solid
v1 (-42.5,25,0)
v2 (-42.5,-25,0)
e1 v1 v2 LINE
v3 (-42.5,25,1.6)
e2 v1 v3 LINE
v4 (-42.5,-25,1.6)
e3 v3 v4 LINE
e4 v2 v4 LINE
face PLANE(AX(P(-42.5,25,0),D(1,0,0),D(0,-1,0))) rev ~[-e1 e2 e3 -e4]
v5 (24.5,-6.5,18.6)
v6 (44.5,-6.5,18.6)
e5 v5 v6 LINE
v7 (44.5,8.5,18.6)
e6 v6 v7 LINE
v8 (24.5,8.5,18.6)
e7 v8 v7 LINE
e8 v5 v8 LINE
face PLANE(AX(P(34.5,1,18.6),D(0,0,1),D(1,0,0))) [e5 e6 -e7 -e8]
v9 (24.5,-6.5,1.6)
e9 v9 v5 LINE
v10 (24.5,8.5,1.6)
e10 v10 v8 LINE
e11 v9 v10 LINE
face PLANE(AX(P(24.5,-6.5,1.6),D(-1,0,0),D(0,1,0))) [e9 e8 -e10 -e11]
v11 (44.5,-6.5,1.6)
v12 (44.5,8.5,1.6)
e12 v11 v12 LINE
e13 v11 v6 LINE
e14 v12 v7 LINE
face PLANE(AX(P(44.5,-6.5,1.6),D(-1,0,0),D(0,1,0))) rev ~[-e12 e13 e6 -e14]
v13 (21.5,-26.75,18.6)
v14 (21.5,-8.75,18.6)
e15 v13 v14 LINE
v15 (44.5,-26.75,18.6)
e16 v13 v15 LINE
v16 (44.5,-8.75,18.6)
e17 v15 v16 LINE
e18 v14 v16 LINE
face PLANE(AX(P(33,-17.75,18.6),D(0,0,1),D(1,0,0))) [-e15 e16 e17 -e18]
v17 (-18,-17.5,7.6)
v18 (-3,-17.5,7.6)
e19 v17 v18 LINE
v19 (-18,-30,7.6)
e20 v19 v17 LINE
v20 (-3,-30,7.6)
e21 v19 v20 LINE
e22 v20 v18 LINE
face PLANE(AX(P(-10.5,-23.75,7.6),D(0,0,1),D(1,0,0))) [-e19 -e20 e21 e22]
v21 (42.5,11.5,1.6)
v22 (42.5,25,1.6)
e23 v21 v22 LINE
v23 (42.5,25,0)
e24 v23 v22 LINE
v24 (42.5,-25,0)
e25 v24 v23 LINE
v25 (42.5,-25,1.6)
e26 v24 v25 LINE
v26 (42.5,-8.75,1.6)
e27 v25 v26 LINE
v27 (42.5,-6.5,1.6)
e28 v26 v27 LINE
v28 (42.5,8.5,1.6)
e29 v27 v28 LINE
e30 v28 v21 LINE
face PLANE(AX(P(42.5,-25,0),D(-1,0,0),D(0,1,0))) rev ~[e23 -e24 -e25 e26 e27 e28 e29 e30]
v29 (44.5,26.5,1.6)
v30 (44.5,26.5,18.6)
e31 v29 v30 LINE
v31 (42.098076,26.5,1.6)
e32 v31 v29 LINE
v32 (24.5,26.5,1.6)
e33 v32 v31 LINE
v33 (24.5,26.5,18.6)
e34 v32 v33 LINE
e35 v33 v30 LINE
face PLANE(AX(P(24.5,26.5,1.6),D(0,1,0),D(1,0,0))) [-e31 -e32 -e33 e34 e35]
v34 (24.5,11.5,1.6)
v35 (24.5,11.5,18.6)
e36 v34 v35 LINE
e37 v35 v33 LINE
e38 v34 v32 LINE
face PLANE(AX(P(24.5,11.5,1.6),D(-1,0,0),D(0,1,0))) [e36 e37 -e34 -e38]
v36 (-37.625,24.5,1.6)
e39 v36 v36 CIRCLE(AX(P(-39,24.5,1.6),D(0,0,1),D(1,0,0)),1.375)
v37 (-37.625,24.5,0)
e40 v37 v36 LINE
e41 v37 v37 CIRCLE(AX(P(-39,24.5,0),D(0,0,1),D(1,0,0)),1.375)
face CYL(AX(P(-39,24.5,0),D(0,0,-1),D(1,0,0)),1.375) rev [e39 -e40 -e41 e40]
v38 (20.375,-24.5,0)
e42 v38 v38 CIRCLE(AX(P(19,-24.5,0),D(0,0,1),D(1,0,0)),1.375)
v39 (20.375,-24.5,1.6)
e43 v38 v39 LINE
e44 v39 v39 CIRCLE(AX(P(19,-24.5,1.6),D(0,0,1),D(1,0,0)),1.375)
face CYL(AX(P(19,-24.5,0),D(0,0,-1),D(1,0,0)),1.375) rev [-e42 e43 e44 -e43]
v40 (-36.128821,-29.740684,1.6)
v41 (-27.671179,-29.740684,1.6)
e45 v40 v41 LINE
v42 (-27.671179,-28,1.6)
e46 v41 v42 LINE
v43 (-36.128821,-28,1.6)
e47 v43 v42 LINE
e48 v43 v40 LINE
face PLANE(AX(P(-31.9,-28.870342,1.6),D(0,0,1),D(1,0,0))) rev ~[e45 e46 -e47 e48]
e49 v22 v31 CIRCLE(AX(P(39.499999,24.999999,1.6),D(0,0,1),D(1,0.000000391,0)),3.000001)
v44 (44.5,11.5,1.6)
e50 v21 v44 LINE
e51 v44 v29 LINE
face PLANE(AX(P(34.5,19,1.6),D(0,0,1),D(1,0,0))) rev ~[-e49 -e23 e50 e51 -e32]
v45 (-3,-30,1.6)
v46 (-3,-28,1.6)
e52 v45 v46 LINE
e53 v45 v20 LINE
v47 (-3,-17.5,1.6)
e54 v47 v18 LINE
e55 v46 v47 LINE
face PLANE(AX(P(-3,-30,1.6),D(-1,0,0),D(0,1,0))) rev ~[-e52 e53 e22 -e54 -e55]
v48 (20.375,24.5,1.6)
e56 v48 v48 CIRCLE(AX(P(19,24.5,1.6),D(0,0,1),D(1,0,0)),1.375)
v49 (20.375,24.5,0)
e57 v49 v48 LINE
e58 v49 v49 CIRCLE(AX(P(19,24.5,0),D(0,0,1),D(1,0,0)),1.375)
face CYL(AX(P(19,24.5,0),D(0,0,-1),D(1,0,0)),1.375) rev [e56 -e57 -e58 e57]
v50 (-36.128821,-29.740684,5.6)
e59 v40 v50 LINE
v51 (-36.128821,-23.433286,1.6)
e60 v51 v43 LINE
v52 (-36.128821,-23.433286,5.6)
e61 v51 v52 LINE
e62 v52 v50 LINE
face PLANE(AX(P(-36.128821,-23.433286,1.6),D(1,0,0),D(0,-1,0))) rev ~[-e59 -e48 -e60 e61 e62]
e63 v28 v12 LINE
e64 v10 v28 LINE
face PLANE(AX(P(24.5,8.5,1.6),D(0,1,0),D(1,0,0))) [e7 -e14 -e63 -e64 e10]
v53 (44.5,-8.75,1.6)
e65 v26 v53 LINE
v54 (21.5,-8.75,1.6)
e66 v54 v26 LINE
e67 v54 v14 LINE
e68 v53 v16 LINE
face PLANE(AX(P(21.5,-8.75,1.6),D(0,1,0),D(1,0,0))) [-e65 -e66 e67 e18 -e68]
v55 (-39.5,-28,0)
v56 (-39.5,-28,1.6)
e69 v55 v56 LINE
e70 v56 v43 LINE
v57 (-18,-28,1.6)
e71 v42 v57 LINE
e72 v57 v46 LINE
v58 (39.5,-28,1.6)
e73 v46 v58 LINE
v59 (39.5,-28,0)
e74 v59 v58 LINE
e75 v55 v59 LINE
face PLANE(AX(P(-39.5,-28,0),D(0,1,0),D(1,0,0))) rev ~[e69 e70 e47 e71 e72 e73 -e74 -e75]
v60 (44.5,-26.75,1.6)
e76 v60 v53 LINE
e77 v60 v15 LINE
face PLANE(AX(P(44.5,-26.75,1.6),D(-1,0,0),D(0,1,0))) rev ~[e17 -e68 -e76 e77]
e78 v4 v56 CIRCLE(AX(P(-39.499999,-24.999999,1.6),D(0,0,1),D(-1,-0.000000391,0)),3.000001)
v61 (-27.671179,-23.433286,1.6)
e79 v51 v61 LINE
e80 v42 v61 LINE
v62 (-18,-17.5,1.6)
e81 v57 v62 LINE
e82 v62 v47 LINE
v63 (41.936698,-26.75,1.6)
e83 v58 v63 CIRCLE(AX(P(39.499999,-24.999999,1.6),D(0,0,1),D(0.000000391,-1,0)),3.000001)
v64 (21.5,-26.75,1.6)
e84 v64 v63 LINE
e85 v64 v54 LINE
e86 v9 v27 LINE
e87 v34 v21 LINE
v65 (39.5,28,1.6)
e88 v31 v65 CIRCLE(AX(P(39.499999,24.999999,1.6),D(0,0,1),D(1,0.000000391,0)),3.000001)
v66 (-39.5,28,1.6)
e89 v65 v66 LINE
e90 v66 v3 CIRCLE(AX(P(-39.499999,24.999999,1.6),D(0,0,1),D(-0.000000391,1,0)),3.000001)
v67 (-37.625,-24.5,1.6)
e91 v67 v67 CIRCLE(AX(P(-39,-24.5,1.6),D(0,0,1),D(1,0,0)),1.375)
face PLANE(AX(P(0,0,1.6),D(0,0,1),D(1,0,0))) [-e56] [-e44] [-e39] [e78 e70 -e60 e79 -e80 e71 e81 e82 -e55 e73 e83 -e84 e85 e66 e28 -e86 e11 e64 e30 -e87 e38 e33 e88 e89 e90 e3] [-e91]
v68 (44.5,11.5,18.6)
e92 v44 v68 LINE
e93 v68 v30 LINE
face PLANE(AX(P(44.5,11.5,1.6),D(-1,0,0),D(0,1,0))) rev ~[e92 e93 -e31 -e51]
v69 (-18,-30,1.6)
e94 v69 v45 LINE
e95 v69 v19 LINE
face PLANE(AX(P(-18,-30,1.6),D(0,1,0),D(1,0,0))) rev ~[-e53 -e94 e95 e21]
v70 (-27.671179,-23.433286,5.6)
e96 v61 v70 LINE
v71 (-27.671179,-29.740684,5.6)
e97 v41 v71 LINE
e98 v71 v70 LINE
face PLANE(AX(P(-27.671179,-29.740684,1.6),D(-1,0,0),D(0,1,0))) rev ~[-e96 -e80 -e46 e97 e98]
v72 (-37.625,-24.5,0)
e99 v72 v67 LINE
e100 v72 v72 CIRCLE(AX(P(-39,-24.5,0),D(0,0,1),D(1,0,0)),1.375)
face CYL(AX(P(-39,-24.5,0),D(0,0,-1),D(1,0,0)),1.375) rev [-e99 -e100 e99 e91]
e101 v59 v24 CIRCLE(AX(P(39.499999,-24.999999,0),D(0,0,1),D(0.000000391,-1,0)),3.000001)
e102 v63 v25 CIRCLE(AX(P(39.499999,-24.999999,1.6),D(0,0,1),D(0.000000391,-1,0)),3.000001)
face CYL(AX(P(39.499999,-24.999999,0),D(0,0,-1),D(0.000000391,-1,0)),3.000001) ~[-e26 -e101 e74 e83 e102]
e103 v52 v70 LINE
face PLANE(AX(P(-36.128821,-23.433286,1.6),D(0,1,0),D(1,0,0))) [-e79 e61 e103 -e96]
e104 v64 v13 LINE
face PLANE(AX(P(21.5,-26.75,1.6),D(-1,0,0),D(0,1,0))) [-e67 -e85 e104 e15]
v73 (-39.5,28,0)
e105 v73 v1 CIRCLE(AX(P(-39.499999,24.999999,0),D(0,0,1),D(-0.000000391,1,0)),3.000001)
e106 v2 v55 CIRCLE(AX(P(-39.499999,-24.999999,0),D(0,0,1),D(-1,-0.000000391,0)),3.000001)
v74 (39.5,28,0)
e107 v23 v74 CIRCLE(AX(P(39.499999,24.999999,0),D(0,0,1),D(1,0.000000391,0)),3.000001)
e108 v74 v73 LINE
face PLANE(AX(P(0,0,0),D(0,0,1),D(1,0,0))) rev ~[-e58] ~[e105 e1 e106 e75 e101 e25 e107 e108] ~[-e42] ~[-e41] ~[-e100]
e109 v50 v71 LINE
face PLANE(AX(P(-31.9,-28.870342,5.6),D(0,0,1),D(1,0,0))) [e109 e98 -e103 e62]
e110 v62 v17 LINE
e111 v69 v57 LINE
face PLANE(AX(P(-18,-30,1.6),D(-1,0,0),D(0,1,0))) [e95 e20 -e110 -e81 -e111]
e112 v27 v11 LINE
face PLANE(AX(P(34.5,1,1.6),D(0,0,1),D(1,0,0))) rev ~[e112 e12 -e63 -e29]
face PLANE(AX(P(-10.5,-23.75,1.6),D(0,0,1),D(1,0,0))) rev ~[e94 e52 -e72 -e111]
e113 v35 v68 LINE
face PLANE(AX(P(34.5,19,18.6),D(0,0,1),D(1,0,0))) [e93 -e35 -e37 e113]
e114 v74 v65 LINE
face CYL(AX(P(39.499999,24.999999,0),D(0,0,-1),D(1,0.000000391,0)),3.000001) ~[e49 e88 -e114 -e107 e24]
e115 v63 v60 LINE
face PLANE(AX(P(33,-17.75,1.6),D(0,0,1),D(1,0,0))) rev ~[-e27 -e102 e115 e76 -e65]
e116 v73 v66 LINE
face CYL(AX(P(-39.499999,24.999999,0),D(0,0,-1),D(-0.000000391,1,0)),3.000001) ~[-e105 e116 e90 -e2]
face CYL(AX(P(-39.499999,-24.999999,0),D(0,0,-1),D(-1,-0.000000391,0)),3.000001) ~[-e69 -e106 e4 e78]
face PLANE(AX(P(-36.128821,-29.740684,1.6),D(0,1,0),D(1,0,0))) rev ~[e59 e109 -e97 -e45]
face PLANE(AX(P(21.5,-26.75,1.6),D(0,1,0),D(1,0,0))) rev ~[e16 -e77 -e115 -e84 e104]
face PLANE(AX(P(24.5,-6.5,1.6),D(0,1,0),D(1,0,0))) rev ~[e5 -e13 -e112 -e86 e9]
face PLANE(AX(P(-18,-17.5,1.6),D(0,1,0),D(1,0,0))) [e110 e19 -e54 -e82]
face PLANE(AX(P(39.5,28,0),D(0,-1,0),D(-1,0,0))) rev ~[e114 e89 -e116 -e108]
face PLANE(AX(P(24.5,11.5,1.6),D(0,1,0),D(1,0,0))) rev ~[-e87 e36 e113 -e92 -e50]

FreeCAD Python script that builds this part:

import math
import FreeCAD as App
import Part
import Sketcher
from FreeCAD import Vector


def add_polygon(sketch, points):
    """Adds a closed chain of lines whose ends are joined by coincident constraints."""
    first, n = sketch.GeometryCount, len(points)
    for a, b in zip(points, points[1:] + points[:1]):
        sketch.addGeometry(Part.LineSegment(App.Vector(*a, 0), App.Vector(*b, 0)), False)
    for i in range(n):
        sketch.addConstraint(Sketcher.Constraint("Coincident", first + i, 2, first + (i + 1) % n, 1))

doc = App.newDocument("Part")
body = doc.addObject("PartDesign::Body", "Body")

sketch1 = doc.addObject("Sketcher::SketchObject", "Sketch")
body.addObject(sketch1)
sketch1.AttachmentSupport = (doc.XY_Plane, [""])
sketch1.MapMode = "FlatFace"
sketch1.addGeometry([
    Part.LineSegment(Vector(-39.5, -28, 0), Vector(39.5, -28, 0)),
    Part.ArcOfCircle(Part.Circle(Vector(39.5, -25, 0), Vector(0, 0, 1), 3), math.radians(-90), math.radians(0)),
    Part.LineSegment(Vector(42.5, -25, 0), Vector(42.5, 25, 0)),
    Part.ArcOfCircle(Part.Circle(Vector(39.5, 25, 0), Vector(0, 0, 1), 3), math.radians(0), math.radians(90)),
    Part.LineSegment(Vector(39.5, 28, 0), Vector(-39.5, 28, 0)),
    Part.ArcOfCircle(Part.Circle(Vector(-39.5, 25, 0), Vector(0, 0, 1), 3), math.radians(90), math.radians(180)),
    Part.LineSegment(Vector(-42.5, 25, 0), Vector(-42.5, -25, 0)),
    Part.ArcOfCircle(Part.Circle(Vector(-39.5, -25, 0), Vector(0, 0, 1), 3), math.radians(-180), math.radians(-90)),
    Part.Circle(Vector(-39, -24.5, 0), Vector(0, 0, 1), 1.4),
    Part.Circle(Vector(19, -24.5, 0), Vector(0, 0, 1), 1.4),
    Part.Circle(Vector(-39, 24.5, 0), Vector(0, 0, 1), 1.4),
    Part.Circle(Vector(19, 24.5, 0), Vector(0, 0, 1), 1.4),
], False)
sketch1.addConstraint([
    Sketcher.Constraint("Tangent", 0, 2, 1, 1),
    Sketcher.Constraint("Tangent", 1, 2, 2, 1),
    Sketcher.Constraint("Tangent", 2, 2, 3, 1),
    Sketcher.Constraint("Tangent", 3, 2, 4, 1),
    Sketcher.Constraint("Tangent", 4, 2, 5, 1),
    Sketcher.Constraint("Tangent", 5, 2, 6, 1),
    Sketcher.Constraint("Tangent", 6, 2, 7, 1),
    Sketcher.Constraint("Tangent", 7, 2, 0, 1),
    Sketcher.Constraint("Horizontal", 0),
    Sketcher.Constraint("Vertical", 2),
    Sketcher.Constraint("Horizontal", 4),
    Sketcher.Constraint("Vertical", 6),
    Sketcher.Constraint("Equal", 1, 3),
    Sketcher.Constraint("Equal", 3, 5),
    Sketcher.Constraint("Equal", 5, 7),
    Sketcher.Constraint("Equal", 8, 9),
    Sketcher.Constraint("Equal", 9, 10),
    Sketcher.Constraint("Equal", 10, 11),
    Sketcher.Constraint("Symmetric", 1, 3, 5, 3, -1, 1),
    Sketcher.Constraint("Symmetric", 8, 3, 10, 3, -1),
    Sketcher.Constraint("Symmetric", 9, 3, 11, 3, -1),
    Sketcher.Constraint("Horizontal", 8, 3, 9, 3),
    Sketcher.Constraint("Radius", 1, 3.000001),
    Sketcher.Constraint("Diameter", 8, 2.75),
    Sketcher.Constraint("DistanceX", 0, 1, 0, 2, 79.0),
    Sketcher.Constraint("DistanceY", 2, 1, 2, 2, 50.0),
    Sketcher.Constraint("DistanceX", 8, 3, -1, 1, 39.0),
    Sketcher.Constraint("DistanceX", -1, 1, 9, 3, 19.0),
    Sketcher.Constraint("DistanceY", 8, 3, 10, 3, 49.0),
])
pad1 = doc.addObject("PartDesign::Pad", "Pad")
body.addObject(pad1)
pad1.Profile = sketch1
pad1.Length = 1.6

sketch2 = doc.addObject("Sketcher::SketchObject", "Sketch001")
body.addObject(sketch2)
sketch2.AttachmentSupport = (doc.XY_Plane, [""])
sketch2.MapMode = "FlatFace"
sketch2.AttachmentOffset = App.Placement(Vector(0, 0, 1.6), App.Rotation())
add_polygon(sketch2, [(-36, -30), (-28, -30), (-28, -23), (-36, -23)])
sketch2.addConstraint([
    Sketcher.Constraint("Horizontal", 0),
    Sketcher.Constraint("Vertical", 1),
    Sketcher.Constraint("Horizontal", 2),
    Sketcher.Constraint("Vertical", 3),
    Sketcher.Constraint("DistanceY", 1, 1, 1, 2, 6.307398),
    Sketcher.Constraint("DistanceX", 0, 1, 0, 2, 8.457642),
    Sketcher.Constraint("DistanceX", 0, 2, -1, 1, 27.671179),
    Sketcher.Constraint("DistanceY", 0, 2, -1, 1, 29.740684),
])
pad2 = doc.addObject("PartDesign::Pad", "Pad001")
body.addObject(pad2)
pad2.Profile = sketch2
pad2.Length = 4

sketch3 = doc.addObject("Sketcher::SketchObject", "Sketch002")
body.addObject(sketch3)
sketch3.AttachmentSupport = (doc.XY_Plane, [""])
sketch3.MapMode = "FlatFace"
sketch3.AttachmentOffset = App.Placement(Vector(0, 0, 1.6), App.Rotation())
add_polygon(sketch3, [(24, 26), (24, 12), (44, 12), (44, 26)])
add_polygon(sketch3, [(24, 8), (24, -6), (44, -6), (44, 8)])
add_polygon(sketch3, [(22, -9), (22, -27), (44, -27), (44, -9)])
sketch3.addConstraint([
    Sketcher.Constraint("Vertical", 0),
    Sketcher.Constraint("Horizontal", 1),
    Sketcher.Constraint("Vertical", 2),
    Sketcher.Constraint("Horizontal", 3),
    Sketcher.Constraint("Vertical", 4),
    Sketcher.Constraint("Horizontal", 5),
    Sketcher.Constraint("Vertical", 6),
    Sketcher.Constraint("Horizontal", 7),
    Sketcher.Constraint("Vertical", 8),
    Sketcher.Constraint("Horizontal", 9),
    Sketcher.Constraint("Vertical", 10),
    Sketcher.Constraint("Horizontal", 11),
    Sketcher.Constraint("Vertical", 3, 2, 4, 2),
    Sketcher.Constraint("Vertical", 2, 2, 5, 2),
    Sketcher.Constraint("Vertical", 6, 2, 9, 2),
    Sketcher.Constraint("Equal", 2, 4),
    Sketcher.Constraint("DistanceX", 1, 1, 1, 2, 20.0),
    Sketcher.Constraint("DistanceX", 9, 1, 9, 2, 23.0),
    Sketcher.Constraint("DistanceY", 0, 2, 0, 1, 15.0),
    Sketcher.Constraint("DistanceY", 8, 2, 8, 1, 18.0),
    Sketcher.Constraint("DistanceY", 4, 2, 0, 2, 18.0),
    Sketcher.Constraint("DistanceX", -1, 1, 0, 2, 24.5),
    Sketcher.Constraint("DistanceY", -1, 1, 0, 2, 11.5),
    Sketcher.Constraint("DistanceY", 8, 2, -1, 1, 26.75),
])
pad3 = doc.addObject("PartDesign::Pad", "Pad002")
body.addObject(pad3)
pad3.Profile = sketch3
pad3.Length = 17

sketch4 = doc.addObject("Sketcher::SketchObject", "Sketch003")
body.addObject(sketch4)
sketch4.AttachmentSupport = (doc.XY_Plane, [""])
sketch4.MapMode = "FlatFace"
sketch4.AttachmentOffset = App.Placement(Vector(0, 0, 1.6), App.Rotation())
add_polygon(sketch4, [(-18, -18), (-18, -30), (-3, -30), (-3, -18)])
sketch4.addConstraint([
    Sketcher.Constraint("Vertical", 0),
    Sketcher.Constraint("Horizontal", 1),
    Sketcher.Constraint("Vertical", 2),
    Sketcher.Constraint("Horizontal", 3),
    Sketcher.Constraint("DistanceX", 1, 1, 1, 2, 15.0),
    Sketcher.Constraint("DistanceY", 0, 2, 0, 1, 12.5),
    Sketcher.Constraint("DistanceX", 0, 2, -1, 1, 18.0),
    Sketcher.Constraint("DistanceY", 0, 2, -1, 1, 30.0),
])
pad4 = doc.addObject("PartDesign::Pad", "Pad003")
body.addObject(pad4)
pad4.Profile = sketch4
pad4.Length = 6

doc.recompute()
